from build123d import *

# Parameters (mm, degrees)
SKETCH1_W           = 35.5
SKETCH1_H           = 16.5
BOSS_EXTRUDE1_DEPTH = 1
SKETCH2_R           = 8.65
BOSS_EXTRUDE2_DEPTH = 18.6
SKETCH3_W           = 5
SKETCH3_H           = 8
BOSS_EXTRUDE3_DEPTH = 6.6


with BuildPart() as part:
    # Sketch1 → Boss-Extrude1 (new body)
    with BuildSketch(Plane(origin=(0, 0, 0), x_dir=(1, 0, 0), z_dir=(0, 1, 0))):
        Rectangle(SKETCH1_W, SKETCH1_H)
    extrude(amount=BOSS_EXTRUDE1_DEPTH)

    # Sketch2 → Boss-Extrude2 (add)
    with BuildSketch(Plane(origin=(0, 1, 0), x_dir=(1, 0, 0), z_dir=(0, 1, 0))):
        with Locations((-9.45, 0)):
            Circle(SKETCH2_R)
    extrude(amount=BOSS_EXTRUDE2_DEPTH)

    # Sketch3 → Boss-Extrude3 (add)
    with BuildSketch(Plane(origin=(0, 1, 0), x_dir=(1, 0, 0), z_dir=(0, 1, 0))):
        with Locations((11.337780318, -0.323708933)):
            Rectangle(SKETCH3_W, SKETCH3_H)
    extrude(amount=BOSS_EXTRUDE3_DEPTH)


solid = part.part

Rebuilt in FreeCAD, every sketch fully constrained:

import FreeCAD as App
import Part
import Sketcher


def add_polygon(sketch, points):
    """Adds a closed chain of lines whose ends are joined by coincident constraints."""
    first, n = sketch.GeometryCount, len(points)
    for a, b in zip(points, points[1:] + points[:1]):
        sketch.addGeometry(Part.LineSegment(App.Vector(*a, 0), App.Vector(*b, 0)), False)
    for i in range(n):
        sketch.addConstraint(Sketcher.Constraint("Coincident", first + i, 2, first + (i + 1) % n, 1))

doc = App.newDocument("Part")
body = doc.addObject("PartDesign::Body", "Body")

# Sketch on XZ plane
sketch1 = body.newObject("Sketcher::SketchObject", "Sketch")
sketch1.AttachmentSupport = (doc.getObject("XZ_Plane"), [""])
sketch1.MapMode = "FlatFace"
add_polygon(sketch1, [(-18, -8), (-18, 8), (18, 8), (18, -8)])  # lines 0-3
sketch1.addConstraint([
    Sketcher.Constraint("Vertical", 0),
    Sketcher.Constraint("Horizontal", 1),
    Sketcher.Constraint("Vertical", 2),
    Sketcher.Constraint("Horizontal", 3),
    Sketcher.Constraint("Symmetric", 0, 2, 2, 2, -1, 1),
    Sketcher.Constraint("DistanceX", 1, 1, 1, 2, 35.5),
    Sketcher.Constraint("DistanceY", 0, 1, 0, 2, 16.5),
])
pad1 = body.newObject("PartDesign::Pad", "Pad")
pad1.Profile = sketch1
pad1.Length = 1
pad1.Reversed = True

# Sketch on XZ plane
sketch2 = body.newObject("Sketcher::SketchObject", "Sketch001")
sketch2.AttachmentSupport = (doc.getObject("XZ_Plane"), [""])
sketch2.MapMode = "FlatFace"
sketch2.AttachmentOffset = App.Placement(App.Vector(0, 0, -1), App.Rotation())
sketch2.addGeometry(Part.Circle(App.Vector(-9, 0, 0), App.Vector(0, 0, 1), 9), False)
sketch2.addConstraint([
    Sketcher.Constraint("PointOnObject", 0, 3, -1),
    Sketcher.Constraint("Diameter", 0, 17.3),
    Sketcher.Constraint("DistanceX", 0, 3, -1, 1, 9.45),
])
pad2 = body.newObject("PartDesign::Pad", "Pad001")
pad2.Profile = sketch2
pad2.Length = 18.6
pad2.Reversed = True

# Sketch on XZ plane
sketch3 = body.newObject("Sketcher::SketchObject", "Sketch002")
sketch3.AttachmentSupport = (doc.getObject("XZ_Plane"), [""])
sketch3.MapMode = "FlatFace"
sketch3.AttachmentOffset = App.Placement(App.Vector(0, 0, -1), App.Rotation())
add_polygon(sketch3, [(9, -4), (9, 4), (14, 4), (14, -4)])  # lines 0-3
sketch3.addConstraint([
    Sketcher.Constraint("Vertical", 0),
    Sketcher.Constraint("Horizontal", 1),
    Sketcher.Constraint("Vertical", 2),
    Sketcher.Constraint("Horizontal", 3),
    Sketcher.Constraint("DistanceX", 1, 1, 1, 2, 5.0),
    Sketcher.Constraint("DistanceY", 0, 1, 0, 2, 8.0),
    Sketcher.Constraint("DistanceX", -1, 1, 0, 2, 8.83778),
    Sketcher.Constraint("DistanceY", -1, 1, 0, 2, 4.323709),
])
pad3 = body.newObject("PartDesign::Pad", "Pad002")
pad3.Profile = sketch3
pad3.Length = 6.6
pad3.Reversed = True

doc.recompute()
